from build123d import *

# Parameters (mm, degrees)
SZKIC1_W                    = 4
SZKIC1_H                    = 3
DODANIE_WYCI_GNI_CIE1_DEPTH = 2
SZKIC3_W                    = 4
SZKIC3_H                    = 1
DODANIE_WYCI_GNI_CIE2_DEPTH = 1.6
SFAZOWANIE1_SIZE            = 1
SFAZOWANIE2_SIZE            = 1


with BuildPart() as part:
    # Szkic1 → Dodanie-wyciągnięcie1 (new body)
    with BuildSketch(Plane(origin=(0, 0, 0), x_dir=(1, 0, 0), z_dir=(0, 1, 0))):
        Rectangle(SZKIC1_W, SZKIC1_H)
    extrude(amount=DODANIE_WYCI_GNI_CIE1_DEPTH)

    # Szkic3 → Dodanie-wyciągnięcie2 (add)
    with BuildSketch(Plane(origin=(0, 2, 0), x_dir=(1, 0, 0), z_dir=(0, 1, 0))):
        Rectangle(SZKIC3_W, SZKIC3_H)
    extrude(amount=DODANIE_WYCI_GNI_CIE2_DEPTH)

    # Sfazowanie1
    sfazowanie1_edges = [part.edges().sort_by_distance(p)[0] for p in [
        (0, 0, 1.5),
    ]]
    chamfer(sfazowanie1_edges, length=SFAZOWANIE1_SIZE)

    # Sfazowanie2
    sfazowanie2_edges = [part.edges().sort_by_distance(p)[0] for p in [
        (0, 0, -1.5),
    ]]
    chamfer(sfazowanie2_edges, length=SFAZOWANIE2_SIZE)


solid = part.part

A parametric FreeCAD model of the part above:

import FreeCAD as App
import Part
import Sketcher
from FreeCAD import Vector
Q = App.Units.Quantity


def edges_at(feature, points):
    """Names of the edges that pass closest to the given points."""
    edges = feature.Shape.Edges
    near = lambda p: min(range(len(edges)), key=lambda i: edges[i].distToShape(Part.Vertex(*p))[0])
    return sorted({f"Edge{near(p) + 1}" for p in points})

doc = App.newDocument("Part")
params = doc.addObject("Spreadsheet::Sheet", "Params")
for row, (alias, value) in enumerate([
    ("sketch1_width", "4 mm"),
    ("sketch1_height", "3 mm"),
    ("pad1_length", "2 mm"),
    ("sketch2_width", "4 mm"),
    ("sketch2_height", "1 mm"),
    ("pad2_length", "1.6 mm"),
    ("chamfer_size", "1 mm"),
    ("chamfer2_size", "1 mm"),
], start=1):
    params.set(f"A{row}", alias)
    params.set(f"B{row}", "=" + value)
    params.setAlias(f"B{row}", alias)

body = doc.addObject("PartDesign::Body", "Body")

sketch1 = doc.addObject("Sketcher::SketchObject", "Sketch")
body.addObject(sketch1)
sketch1.AttachmentSupport = (doc.XZ_Plane, [""])
sketch1.MapMode = "FlatFace"
sketch1.addGeometry(Part.LineSegment(Vector(-2, -1.5, 0), Vector(-2, 1.5, 0)), False)
sketch1.addGeometry(Part.LineSegment(Vector(-2, 1.5, 0), Vector(2, 1.5, 0)), False)
sketch1.addGeometry(Part.LineSegment(Vector(2, 1.5, 0), Vector(2, -1.5, 0)), False)
sketch1.addGeometry(Part.LineSegment(Vector(2, -1.5, 0), Vector(-2, -1.5, 0)), False)
sketch1.addConstraint(Sketcher.Constraint("Coincident", 0, 2, 1, 1))
sketch1.addConstraint(Sketcher.Constraint("Coincident", 1, 2, 2, 1))
sketch1.addConstraint(Sketcher.Constraint("Coincident", 2, 2, 3, 1))
sketch1.addConstraint(Sketcher.Constraint("Coincident", 3, 2, 0, 1))
sketch1.addConstraint(Sketcher.Constraint("Vertical", 0))
sketch1.addConstraint(Sketcher.Constraint("Horizontal", 1))
sketch1.addConstraint(Sketcher.Constraint("Vertical", 2))
sketch1.addConstraint(Sketcher.Constraint("Horizontal", 3))
sketch1.addConstraint(Sketcher.Constraint("Symmetric", 0, 2, 2, 2, -1, 1))
sketch1.addConstraint(Sketcher.Constraint("DistanceX", 1, 1, 1, 2, Q("4 mm")))
sketch1.addConstraint(Sketcher.Constraint("DistanceY", 0, 1, 0, 2, Q("3 mm")))
sketch1.setExpression("Constraints[9]", "Params.sketch1_width")
sketch1.setExpression("Constraints[10]", "Params.sketch1_height")
pad1 = doc.addObject("PartDesign::Pad", "Pad")
body.addObject(pad1)
pad1.Profile = sketch1
pad1.setExpression("Length", "Params.pad1_length")
pad1.Reversed = True

sketch2 = doc.addObject("Sketcher::SketchObject", "Sketch001")
body.addObject(sketch2)
sketch2.AttachmentSupport = (doc.XZ_Plane, [""])
sketch2.MapMode = "FlatFace"
sketch2.AttachmentOffset = App.Placement(Vector(0, 0, -2), App.Rotation())
sketch2.addGeometry(Part.LineSegment(Vector(-2, -0.5, 0), Vector(-2, 0.5, 0)), False)
sketch2.addGeometry(Part.LineSegment(Vector(-2, 0.5, 0), Vector(2, 0.5, 0)), False)
sketch2.addGeometry(Part.LineSegment(Vector(2, 0.5, 0), Vector(2, -0.5, 0)), False)
sketch2.addGeometry(Part.LineSegment(Vector(2, -0.5, 0), Vector(-2, -0.5, 0)), False)
sketch2.addConstraint(Sketcher.Constraint("Coincident", 0, 2, 1, 1))
sketch2.addConstraint(Sketcher.Constraint("Coincident", 1, 2, 2, 1))
sketch2.addConstraint(Sketcher.Constraint("Coincident", 2, 2, 3, 1))
sketch2.addConstraint(Sketcher.Constraint("Coincident", 3, 2, 0, 1))
sketch2.addConstraint(Sketcher.Constraint("Vertical", 0))
sketch2.addConstraint(Sketcher.Constraint("Horizontal", 1))
sketch2.addConstraint(Sketcher.Constraint("Vertical", 2))
sketch2.addConstraint(Sketcher.Constraint("Horizontal", 3))
sketch2.addConstraint(Sketcher.Constraint("Symmetric", 0, 2, 2, 2, -1, 1))
sketch2.addConstraint(Sketcher.Constraint("DistanceX", 1, 1, 1, 2, Q("4 mm")))
sketch2.addConstraint(Sketcher.Constraint("DistanceY", 0, 1, 0, 2, Q("1 mm")))
sketch2.setExpression("Constraints[9]", "Params.sketch2_width")
sketch2.setExpression("Constraints[10]", "Params.sketch2_height")
pad2 = doc.addObject("PartDesign::Pad", "Pad001")
body.addObject(pad2)
pad2.Profile = sketch2
pad2.setExpression("Length", "Params.pad2_length")
pad2.Reversed = True
doc.recompute()

chamfer = doc.addObject("PartDesign::Chamfer", "Chamfer")
body.addObject(chamfer)
chamfer.Base = (pad2, edges_at(pad2, [(0, 0, 1.5)]))
chamfer.setExpression("Size", "Params.chamfer_size")
doc.recompute()

chamfer2 = doc.addObject("PartDesign::Chamfer", "Chamfer001")
body.addObject(chamfer2)
chamfer2.Base = (chamfer, edges_at(chamfer, [(0, 0, -1.5)]))
chamfer2.setExpression("Size", "Params.chamfer2_size")

doc.recompute()
